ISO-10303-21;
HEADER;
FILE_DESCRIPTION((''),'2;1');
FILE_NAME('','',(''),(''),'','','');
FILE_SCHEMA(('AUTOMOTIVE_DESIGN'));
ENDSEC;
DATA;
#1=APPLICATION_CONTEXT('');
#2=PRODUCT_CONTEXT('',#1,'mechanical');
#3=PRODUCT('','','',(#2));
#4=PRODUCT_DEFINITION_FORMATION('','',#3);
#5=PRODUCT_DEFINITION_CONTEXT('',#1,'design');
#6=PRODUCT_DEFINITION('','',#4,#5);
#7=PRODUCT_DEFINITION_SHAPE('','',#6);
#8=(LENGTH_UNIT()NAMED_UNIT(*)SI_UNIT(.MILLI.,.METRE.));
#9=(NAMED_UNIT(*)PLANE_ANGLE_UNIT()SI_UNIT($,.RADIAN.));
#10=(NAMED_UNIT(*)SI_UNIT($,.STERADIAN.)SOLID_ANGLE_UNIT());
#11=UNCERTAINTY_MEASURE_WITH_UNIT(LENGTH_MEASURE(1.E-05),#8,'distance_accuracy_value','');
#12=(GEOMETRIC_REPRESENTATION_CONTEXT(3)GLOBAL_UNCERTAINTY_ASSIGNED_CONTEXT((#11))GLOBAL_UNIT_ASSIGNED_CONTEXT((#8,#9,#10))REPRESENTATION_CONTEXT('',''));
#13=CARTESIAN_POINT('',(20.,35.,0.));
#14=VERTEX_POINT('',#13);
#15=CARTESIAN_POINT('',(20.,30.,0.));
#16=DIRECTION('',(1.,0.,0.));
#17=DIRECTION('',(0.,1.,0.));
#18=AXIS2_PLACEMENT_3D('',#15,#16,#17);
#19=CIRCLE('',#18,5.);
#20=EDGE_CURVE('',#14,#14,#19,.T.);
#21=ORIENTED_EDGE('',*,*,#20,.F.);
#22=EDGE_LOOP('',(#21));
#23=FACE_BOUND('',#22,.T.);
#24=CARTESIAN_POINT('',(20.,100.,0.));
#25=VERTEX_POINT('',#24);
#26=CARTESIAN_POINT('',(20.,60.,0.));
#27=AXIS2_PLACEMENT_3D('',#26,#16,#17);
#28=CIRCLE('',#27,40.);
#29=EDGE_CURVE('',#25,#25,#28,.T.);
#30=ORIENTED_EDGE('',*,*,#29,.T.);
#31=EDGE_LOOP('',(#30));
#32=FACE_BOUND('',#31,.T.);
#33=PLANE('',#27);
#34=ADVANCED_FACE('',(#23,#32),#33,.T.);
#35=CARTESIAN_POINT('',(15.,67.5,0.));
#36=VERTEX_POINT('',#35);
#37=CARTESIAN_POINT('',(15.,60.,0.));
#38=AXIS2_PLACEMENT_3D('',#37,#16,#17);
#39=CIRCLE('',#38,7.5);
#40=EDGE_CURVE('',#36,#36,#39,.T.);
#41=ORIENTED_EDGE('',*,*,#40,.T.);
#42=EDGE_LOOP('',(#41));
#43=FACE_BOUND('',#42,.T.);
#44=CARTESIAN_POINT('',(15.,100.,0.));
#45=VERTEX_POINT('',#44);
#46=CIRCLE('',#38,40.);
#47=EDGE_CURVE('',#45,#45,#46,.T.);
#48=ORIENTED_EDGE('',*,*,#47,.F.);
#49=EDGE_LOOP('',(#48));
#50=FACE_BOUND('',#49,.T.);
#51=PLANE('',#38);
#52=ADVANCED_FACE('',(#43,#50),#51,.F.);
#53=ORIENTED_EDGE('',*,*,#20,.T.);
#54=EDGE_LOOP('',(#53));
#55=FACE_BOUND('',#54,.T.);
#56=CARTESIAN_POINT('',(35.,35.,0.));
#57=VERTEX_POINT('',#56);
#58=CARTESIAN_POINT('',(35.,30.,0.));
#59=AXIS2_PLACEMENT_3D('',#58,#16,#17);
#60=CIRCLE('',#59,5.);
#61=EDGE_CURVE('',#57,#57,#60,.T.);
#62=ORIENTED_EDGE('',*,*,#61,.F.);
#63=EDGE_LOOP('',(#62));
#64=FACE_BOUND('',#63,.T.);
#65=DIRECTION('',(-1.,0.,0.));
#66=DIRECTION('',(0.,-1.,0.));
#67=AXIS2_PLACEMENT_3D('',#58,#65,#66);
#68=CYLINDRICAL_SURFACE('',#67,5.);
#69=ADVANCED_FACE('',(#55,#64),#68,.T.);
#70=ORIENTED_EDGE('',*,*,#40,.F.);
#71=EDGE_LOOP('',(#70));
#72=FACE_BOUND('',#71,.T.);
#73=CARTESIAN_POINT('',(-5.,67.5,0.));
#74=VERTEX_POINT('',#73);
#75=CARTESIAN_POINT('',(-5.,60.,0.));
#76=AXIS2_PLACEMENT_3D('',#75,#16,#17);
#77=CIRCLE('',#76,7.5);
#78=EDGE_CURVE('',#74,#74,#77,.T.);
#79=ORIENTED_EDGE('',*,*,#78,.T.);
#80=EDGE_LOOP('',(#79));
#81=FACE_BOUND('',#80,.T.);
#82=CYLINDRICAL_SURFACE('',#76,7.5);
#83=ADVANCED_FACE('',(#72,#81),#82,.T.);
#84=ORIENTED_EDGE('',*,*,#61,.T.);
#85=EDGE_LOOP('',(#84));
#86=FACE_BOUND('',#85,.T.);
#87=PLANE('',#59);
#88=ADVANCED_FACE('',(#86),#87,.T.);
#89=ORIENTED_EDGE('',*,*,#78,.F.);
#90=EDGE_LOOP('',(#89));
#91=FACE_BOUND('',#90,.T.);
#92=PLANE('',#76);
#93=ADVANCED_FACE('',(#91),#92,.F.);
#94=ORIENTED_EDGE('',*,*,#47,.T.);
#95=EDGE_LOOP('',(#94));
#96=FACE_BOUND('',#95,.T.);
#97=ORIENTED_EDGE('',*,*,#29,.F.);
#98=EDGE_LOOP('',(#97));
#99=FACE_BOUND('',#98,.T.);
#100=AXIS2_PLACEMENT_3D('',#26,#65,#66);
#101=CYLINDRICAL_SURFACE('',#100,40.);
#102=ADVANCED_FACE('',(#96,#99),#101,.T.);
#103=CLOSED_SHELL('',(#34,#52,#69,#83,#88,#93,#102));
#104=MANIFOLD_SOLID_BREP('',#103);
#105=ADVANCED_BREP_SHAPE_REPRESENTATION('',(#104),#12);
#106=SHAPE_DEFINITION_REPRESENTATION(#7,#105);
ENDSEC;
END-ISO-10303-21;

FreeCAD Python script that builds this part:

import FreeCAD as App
import Part
import Sketcher

V = App.Vector
Q = App.Units.Quantity

doc = App.newDocument("Part")
body = doc.addObject("PartDesign::Body", "Body")

# Sketch on YZ plane
sketch1 = body.newObject("Sketcher::SketchObject", "Sketch")
sketch1.AttachmentSupport = (doc.getObject("YZ_Plane"), [""])
sketch1.MapMode = "FlatFace"
sketch1.AttachmentOffset = App.Placement(V(0, 0, 10), App.Rotation())
sketch1.addGeometry(Part.Circle(V(60, 0, 0), V(0, 0, 1), 8), False)
sketch1.addConstraint([
    Sketcher.Constraint("PointOnObject", 0, 3, -1),
    Sketcher.Constraint("Diameter", 0, Q("15 mm")),
    Sketcher.Constraint("DistanceX", -1, 1, 0, 3, Q("60 mm")),
])
pad1 = body.newObject("PartDesign::Pad", "Pad")
pad1.Profile = sketch1
pad1.Type = "TwoLengths"
pad1.Length = 5
pad1.Length2 = 15

# Sketch on YZ plane
sketch2 = body.newObject("Sketcher::SketchObject", "Sketch001")
sketch2.AttachmentSupport = (doc.getObject("YZ_Plane"), [""])
sketch2.MapMode = "FlatFace"
sketch2.AttachmentOffset = App.Placement(V(0, 0, 15), App.Rotation())
sketch2.addGeometry(Part.Circle(V(60, 0, 0), V(0, 0, 1), 40), False)
sketch2.addConstraint([
    Sketcher.Constraint("PointOnObject", 0, 3, -1),
    Sketcher.Constraint("Diameter", 0, Q("80 mm")),
    Sketcher.Constraint("DistanceX", -1, 1, 0, 3, Q("60 mm")),
])
pad2 = body.newObject("PartDesign::Pad", "Pad001")
pad2.Profile = sketch2
pad2.Length = 5

# Sketch on YZ plane
sketch3 = body.newObject("Sketcher::SketchObject", "Sketch002")
sketch3.AttachmentSupport = (doc.getObject("YZ_Plane"), [""])
sketch3.MapMode = "FlatFace"
sketch3.AttachmentOffset = App.Placement(V(0, 0, 20), App.Rotation())
sketch3.addGeometry(Part.Circle(V(30, 0, 0), V(0, 0, 1), 5), False)
sketch3.addConstraint([
    Sketcher.Constraint("PointOnObject", 0, 3, -1),
    Sketcher.Constraint("Diameter", 0, Q("10 mm")),
    Sketcher.Constraint("DistanceX", -1, 1, 0, 3, Q("30 mm")),
])
pad3 = body.newObject("PartDesign::Pad", "Pad002")
pad3.Profile = sketch3
pad3.Length = 15

doc.recompute()
